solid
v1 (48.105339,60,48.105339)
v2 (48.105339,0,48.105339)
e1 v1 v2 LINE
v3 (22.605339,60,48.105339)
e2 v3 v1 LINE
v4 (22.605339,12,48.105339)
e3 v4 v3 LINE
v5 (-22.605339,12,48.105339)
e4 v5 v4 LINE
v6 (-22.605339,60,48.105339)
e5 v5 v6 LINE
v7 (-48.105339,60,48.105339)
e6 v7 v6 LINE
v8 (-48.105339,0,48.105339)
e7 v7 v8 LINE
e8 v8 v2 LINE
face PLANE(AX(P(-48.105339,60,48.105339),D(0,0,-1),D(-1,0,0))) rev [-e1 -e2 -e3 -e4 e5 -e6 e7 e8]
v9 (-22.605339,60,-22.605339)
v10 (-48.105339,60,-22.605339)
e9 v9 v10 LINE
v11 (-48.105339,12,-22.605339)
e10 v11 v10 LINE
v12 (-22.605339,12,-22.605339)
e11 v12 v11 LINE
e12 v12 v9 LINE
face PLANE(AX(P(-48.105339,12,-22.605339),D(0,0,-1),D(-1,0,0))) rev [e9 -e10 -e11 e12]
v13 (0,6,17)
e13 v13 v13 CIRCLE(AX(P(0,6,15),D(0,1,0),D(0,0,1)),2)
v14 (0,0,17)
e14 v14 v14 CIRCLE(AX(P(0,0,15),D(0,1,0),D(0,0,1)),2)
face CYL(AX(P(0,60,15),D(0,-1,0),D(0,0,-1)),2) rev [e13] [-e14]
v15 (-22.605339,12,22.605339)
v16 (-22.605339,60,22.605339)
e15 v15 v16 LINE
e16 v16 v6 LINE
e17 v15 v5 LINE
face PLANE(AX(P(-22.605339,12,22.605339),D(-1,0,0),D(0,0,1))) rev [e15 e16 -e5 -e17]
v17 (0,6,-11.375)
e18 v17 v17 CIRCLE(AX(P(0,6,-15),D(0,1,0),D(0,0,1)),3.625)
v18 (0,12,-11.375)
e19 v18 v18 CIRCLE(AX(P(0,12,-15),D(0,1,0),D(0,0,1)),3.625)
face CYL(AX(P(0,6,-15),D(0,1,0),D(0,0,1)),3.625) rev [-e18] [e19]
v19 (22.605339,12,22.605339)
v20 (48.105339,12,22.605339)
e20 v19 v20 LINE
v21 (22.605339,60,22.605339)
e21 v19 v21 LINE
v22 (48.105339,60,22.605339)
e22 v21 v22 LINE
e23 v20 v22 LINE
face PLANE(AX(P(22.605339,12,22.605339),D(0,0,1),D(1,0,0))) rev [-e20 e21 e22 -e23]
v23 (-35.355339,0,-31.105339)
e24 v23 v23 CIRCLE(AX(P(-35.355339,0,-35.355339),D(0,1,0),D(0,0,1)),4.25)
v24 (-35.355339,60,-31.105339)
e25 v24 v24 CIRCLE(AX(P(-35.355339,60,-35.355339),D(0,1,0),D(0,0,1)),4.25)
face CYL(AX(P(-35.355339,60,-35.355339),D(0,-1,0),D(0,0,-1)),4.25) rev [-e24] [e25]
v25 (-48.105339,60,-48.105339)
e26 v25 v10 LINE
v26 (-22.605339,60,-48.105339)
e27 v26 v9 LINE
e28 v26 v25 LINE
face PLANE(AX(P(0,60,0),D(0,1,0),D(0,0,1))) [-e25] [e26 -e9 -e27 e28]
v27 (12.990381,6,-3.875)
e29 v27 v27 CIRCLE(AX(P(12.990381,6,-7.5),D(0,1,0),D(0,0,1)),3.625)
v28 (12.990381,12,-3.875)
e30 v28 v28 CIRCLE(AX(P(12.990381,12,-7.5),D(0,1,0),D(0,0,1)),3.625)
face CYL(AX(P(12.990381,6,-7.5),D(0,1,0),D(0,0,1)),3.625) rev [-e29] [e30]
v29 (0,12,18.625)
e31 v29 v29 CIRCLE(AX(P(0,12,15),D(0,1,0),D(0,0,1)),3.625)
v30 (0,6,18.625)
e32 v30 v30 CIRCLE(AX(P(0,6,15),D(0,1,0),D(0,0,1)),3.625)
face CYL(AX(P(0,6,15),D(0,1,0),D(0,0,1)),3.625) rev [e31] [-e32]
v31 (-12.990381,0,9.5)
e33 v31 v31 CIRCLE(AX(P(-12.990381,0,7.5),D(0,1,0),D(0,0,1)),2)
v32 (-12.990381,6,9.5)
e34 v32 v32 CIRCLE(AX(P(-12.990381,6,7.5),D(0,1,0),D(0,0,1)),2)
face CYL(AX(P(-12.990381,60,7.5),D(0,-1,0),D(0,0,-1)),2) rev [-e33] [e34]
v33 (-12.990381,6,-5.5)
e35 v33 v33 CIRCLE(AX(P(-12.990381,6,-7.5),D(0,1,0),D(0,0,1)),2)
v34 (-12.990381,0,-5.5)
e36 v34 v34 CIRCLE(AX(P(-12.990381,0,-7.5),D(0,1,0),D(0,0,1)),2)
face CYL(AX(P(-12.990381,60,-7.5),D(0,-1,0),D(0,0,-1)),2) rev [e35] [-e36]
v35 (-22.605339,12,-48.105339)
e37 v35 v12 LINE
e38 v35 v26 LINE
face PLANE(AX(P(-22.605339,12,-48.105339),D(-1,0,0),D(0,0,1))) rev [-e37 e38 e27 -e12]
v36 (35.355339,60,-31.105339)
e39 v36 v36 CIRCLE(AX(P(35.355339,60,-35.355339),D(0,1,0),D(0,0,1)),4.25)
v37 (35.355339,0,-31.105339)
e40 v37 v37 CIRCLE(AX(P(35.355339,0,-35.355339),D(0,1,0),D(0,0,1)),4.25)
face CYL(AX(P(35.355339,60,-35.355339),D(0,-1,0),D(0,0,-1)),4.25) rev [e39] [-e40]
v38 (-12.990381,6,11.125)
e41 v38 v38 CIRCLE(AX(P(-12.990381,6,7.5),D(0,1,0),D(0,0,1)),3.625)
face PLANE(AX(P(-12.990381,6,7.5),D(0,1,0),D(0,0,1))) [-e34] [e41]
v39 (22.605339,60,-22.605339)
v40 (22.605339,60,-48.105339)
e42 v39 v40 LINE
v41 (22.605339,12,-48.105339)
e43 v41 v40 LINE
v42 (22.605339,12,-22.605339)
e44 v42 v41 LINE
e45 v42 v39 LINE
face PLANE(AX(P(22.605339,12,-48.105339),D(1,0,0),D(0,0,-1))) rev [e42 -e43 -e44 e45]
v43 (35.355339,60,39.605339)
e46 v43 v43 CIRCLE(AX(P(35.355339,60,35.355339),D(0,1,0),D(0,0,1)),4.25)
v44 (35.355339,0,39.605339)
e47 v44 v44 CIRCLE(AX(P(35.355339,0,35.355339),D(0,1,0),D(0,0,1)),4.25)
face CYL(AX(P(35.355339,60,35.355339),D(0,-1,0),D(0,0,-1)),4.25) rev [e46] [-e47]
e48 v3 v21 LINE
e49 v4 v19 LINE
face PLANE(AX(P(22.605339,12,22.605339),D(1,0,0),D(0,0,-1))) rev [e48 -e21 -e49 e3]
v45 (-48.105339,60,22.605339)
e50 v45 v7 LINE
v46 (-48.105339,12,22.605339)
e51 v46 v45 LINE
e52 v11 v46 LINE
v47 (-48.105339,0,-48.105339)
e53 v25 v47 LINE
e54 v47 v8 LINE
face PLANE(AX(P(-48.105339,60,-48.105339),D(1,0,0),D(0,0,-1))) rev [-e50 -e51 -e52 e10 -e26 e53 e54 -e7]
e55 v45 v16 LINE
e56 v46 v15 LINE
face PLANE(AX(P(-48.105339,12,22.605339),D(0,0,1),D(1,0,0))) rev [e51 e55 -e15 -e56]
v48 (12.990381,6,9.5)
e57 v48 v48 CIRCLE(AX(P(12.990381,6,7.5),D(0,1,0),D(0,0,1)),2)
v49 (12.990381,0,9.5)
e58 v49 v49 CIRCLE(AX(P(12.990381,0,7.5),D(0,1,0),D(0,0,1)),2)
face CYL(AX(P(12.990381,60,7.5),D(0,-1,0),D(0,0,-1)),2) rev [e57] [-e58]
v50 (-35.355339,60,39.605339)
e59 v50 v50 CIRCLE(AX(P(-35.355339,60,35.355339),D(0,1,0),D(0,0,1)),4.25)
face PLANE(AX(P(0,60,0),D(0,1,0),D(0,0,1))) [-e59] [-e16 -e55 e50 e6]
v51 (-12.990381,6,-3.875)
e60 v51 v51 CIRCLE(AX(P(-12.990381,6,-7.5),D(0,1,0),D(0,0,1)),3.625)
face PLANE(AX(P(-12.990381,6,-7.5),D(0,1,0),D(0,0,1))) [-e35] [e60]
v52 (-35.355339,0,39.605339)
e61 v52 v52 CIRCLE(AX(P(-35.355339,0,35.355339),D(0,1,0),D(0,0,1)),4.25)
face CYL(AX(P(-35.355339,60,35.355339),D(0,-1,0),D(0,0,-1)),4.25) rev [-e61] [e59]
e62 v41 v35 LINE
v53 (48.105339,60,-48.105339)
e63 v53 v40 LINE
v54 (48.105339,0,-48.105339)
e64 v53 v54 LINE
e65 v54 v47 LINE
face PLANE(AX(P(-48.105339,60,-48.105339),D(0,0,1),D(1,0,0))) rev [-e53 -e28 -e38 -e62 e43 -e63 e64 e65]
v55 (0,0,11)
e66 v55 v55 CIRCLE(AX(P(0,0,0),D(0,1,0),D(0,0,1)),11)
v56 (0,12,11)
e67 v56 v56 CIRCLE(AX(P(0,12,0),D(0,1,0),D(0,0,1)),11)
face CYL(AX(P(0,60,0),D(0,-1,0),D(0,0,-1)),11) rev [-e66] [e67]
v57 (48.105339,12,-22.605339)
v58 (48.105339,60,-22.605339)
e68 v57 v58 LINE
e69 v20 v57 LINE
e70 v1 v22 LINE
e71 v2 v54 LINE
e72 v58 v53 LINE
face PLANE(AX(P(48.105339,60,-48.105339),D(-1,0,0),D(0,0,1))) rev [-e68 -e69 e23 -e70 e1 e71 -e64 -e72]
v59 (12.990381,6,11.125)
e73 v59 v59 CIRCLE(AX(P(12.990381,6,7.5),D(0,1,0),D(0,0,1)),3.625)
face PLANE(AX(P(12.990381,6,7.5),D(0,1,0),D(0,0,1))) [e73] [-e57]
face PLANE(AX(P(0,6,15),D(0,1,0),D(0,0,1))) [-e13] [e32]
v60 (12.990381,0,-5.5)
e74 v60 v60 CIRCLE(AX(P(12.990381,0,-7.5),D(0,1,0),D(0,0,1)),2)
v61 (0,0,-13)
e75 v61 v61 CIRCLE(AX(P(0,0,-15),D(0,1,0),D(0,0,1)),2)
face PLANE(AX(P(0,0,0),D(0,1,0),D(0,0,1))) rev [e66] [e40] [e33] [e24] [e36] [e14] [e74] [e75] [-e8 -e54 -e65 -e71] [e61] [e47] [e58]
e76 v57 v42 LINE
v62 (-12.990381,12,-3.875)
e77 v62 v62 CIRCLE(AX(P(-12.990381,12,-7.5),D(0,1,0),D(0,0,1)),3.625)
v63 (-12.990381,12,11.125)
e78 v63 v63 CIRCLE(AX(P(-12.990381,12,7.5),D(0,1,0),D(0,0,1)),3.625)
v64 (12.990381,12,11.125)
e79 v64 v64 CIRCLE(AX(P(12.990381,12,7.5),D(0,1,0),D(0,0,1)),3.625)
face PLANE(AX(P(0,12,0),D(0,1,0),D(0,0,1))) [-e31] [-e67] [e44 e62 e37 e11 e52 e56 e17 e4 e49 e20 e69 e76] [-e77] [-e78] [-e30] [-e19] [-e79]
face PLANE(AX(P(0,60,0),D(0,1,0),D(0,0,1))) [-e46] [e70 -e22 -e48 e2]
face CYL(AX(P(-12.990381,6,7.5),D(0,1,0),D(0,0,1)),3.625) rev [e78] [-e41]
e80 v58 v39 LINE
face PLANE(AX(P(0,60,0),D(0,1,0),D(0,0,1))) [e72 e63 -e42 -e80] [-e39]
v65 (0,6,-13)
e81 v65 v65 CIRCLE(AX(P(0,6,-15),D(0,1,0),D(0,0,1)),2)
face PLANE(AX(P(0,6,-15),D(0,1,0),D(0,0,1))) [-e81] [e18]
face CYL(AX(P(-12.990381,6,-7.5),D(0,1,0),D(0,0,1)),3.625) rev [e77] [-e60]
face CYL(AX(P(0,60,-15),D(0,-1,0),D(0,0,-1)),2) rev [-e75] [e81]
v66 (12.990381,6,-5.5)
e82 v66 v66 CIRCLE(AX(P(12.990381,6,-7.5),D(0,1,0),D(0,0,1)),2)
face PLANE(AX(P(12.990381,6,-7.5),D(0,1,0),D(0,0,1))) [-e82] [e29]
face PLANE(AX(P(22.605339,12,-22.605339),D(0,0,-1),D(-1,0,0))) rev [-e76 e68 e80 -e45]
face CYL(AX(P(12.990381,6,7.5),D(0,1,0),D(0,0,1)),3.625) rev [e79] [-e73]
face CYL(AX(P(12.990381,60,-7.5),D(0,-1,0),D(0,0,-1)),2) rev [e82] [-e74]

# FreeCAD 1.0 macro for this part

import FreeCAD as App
import Part
import Sketcher


def add_polygon(sketch, points):
    """Adds a closed chain of lines whose ends are joined by coincident constraints."""
    first, n = sketch.GeometryCount, len(points)
    for a, b in zip(points, points[1:] + points[:1]):
        sketch.addGeometry(Part.LineSegment(App.Vector(*a, 0), App.Vector(*b, 0)), False)
    for i in range(n):
        sketch.addConstraint(Sketcher.Constraint("Coincident", first + i, 2, first + (i + 1) % n, 1))

doc = App.newDocument("Part")
body = doc.addObject("PartDesign::Body", "Body")

# Sketch on XZ plane
sketch1 = body.newObject("Sketcher::SketchObject", "Sketch")
sketch1.AttachmentSupport = (doc.getObject("XZ_Plane"), [""])
sketch1.MapMode = "FlatFace"
add_polygon(sketch1, [(-48.1, -48.1), (-48.1, 48.1), (48.1, 48.1), (48.1, -48.1)])  # lines 0-3
sketch1.addGeometry(Part.Circle(App.Vector(-35.4, 35.4, 0), App.Vector(0, 0, 1), 4.2), False)  # 4
sketch1.addGeometry(Part.Circle(App.Vector(-13, 7.5, 0), App.Vector(0, 0, 1), 2), False)  # 5
sketch1.addGeometry(Part.Circle(App.Vector(35.4, 35.4, 0), App.Vector(0, 0, 1), 4.2), False)  # 6
sketch1.addGeometry(Part.Circle(App.Vector(0, 15, 0), App.Vector(0, 0, 1), 2), False)  # 7
sketch1.addGeometry(Part.Circle(App.Vector(13, 7.5, 0), App.Vector(0, 0, 1), 2), False)  # 8
sketch1.addGeometry(Part.Circle(App.Vector(-13, -7.5, 0), App.Vector(0, 0, 1), 2), False)  # 9
sketch1.addGeometry(Part.Circle(App.Vector(-35.4, -35.4, 0), App.Vector(0, 0, 1), 4.2), False)  # 10
sketch1.addGeometry(Part.Circle(App.Vector(0, 0, 0), App.Vector(0, 0, 1), 11), False)  # 11
sketch1.addGeometry(Part.Circle(App.Vector(13, -7.5, 0), App.Vector(0, 0, 1), 2), False)  # 12
sketch1.addGeometry(Part.Circle(App.Vector(0, -15, 0), App.Vector(0, 0, 1), 2), False)  # 13
sketch1.addGeometry(Part.Circle(App.Vector(35.4, -35.4, 0), App.Vector(0, 0, 1), 4.2), False)  # 14
sketch1.addConstraint(Sketcher.Constraint("Vertical", 0))
sketch1.addConstraint(Sketcher.Constraint("Horizontal", 1))
sketch1.addConstraint(Sketcher.Constraint("Vertical", 2))
sketch1.addConstraint(Sketcher.Constraint("Horizontal", 3))
sketch1.addConstraint(Sketcher.Constraint("Coincident", 11, 3, -1, 1))
sketch1.addConstraint(Sketcher.Constraint("Equal", 4, 6))
sketch1.addConstraint(Sketcher.Constraint("Equal", 5, 7))
sketch1.addConstraint(Sketcher.Constraint("Equal", 7, 8))
sketch1.addConstraint(Sketcher.Constraint("Equal", 8, 9))
sketch1.addConstraint(Sketcher.Constraint("Equal", 6, 10))
sketch1.addConstraint(Sketcher.Constraint("Equal", 9, 12))
sketch1.addConstraint(Sketcher.Constraint("Equal", 12, 13))
sketch1.addConstraint(Sketcher.Constraint("Equal", 10, 14))
sketch1.addConstraint(Sketcher.Constraint("Symmetric", 8, 3, 9, 3, -1, 1))
sketch1.addConstraint(Sketcher.Constraint("Symmetric", 6, 3, 10, 3, -1, 1))
sketch1.addConstraint(Sketcher.Constraint("Symmetric", 5, 3, 12, 3, -1, 1))
sketch1.addConstraint(Sketcher.Constraint("Symmetric", 7, 3, 13, 3, -1, 1))
sketch1.addConstraint(Sketcher.Constraint("Symmetric", 4, 3, 14, 3, -1, 1))
sketch1.addConstraint(Sketcher.Constraint("Symmetric", 0, 2, 2, 2, -1, 1))
sketch1.addConstraint(Sketcher.Constraint("Symmetric", 4, 3, 6, 3, -2))
sketch1.addConstraint(Sketcher.Constraint("Symmetric", 5, 3, 8, 3, -2))
sketch1.addConstraint(Sketcher.Constraint("PointOnObject", 7, 3, -2))
sketch1.addConstraint(Sketcher.Constraint("Equal", 3, 0))
sketch1.addConstraint(Sketcher.Constraint("Diameter", 5, 4.0))
sketch1.addConstraint(Sketcher.Constraint("Diameter", 11, 22.0))
sketch1.addConstraint(Sketcher.Constraint("Diameter", 4, 8.5))
sketch1.addConstraint(Sketcher.Constraint("DistanceY", -1, 1, 7, 3, 15.0))
sketch1.addConstraint(Sketcher.Constraint("DistanceY", 9, 3, 5, 3, 15.0))
sketch1.addConstraint(Sketcher.Constraint("DistanceX", 0, 2, 4, 3, 12.75))
sketch1.addConstraint(Sketcher.Constraint("DistanceY", 4, 3, 0, 2, 12.75))
sketch1.addConstraint(Sketcher.Constraint("DistanceX", 1, 1, 1, 2, 96.210678))
sketch1.addConstraint(Sketcher.Constraint("DistanceX", 5, 3, -1, 1, 12.990381))
pad1 = body.newObject("PartDesign::Pad", "Pad")
pad1.Profile = sketch1
pad1.Length = 60
pad1.Reversed = True

# Sketch on XZ plane
sketch2 = body.newObject("Sketcher::SketchObject", "Sketch001")
sketch2.AttachmentSupport = (doc.getObject("XZ_Plane"), [""])
sketch2.MapMode = "FlatFace"
sketch2.AttachmentOffset = App.Placement(App.Vector(0, 0, -60), App.Rotation())
add_polygon(sketch2, [(23, -48), (-23, -48), (-23, -23), (-48, -23), (-48, 23), (-23, 23), (-23, 48), (23, 48), (23, 23), (48, 23), (48, -23), (23, -23)])  # lines 0-11
sketch2.addConstraint(Sketcher.Constraint("Horizontal", 0))
sketch2.addConstraint(Sketcher.Constraint("Vertical", 1))
sketch2.addConstraint(Sketcher.Constraint("Horizontal", 2))
sketch2.addConstraint(Sketcher.Constraint("Vertical", 3))
sketch2.addConstraint(Sketcher.Constraint("Horizontal", 4))
sketch2.addConstraint(Sketcher.Constraint("Vertical", 5))
sketch2.addConstraint(Sketcher.Constraint("Horizontal", 6))
sketch2.addConstraint(Sketcher.Constraint("Vertical", 7))
sketch2.addConstraint(Sketcher.Constraint("Horizontal", 8))
sketch2.addConstraint(Sketcher.Constraint("Vertical", 9))
sketch2.addConstraint(Sketcher.Constraint("Horizontal", 10))
sketch2.addConstraint(Sketcher.Constraint("Vertical", 11))
sketch2.addConstraint(Sketcher.Constraint("Symmetric", 0, 2, 6, 2, -1, 1))
sketch2.addConstraint(Sketcher.Constraint("Symmetric", 2, 2, 8, 2, -1, 1))
sketch2.addConstraint(Sketcher.Constraint("Symmetric", 4, 2, 10, 2, -1, 1))
sketch2.addConstraint(Sketcher.Constraint("Symmetric", 4, 2, 7, 2, -2))
sketch2.addConstraint(Sketcher.Constraint("Equal", 10, 1))
sketch2.addConstraint(Sketcher.Constraint("Equal", 6, 3))
sketch2.addConstraint(Sketcher.Constraint("DistanceX", 2, 2, 2, 1, 25.5))
sketch2.addConstraint(Sketcher.Constraint("DistanceX", 0, 2, 0, 1, 45.210678))
pocket1 = body.newObject("PartDesign::Pocket", "Pocket")
pocket1.Profile = sketch2
pocket1.Length = 48
pocket1.Reversed = True

# Sketch on XZ plane
sketch3 = body.newObject("Sketcher::SketchObject", "Sketch002")
sketch3.AttachmentSupport = (doc.getObject("XZ_Plane"), [""])
sketch3.MapMode = "FlatFace"
sketch3.AttachmentOffset = App.Placement(App.Vector(0, 0, -60), App.Rotation())
sketch3.addGeometry(Part.Circle(App.Vector(13, -7.5, 0), App.Vector(0, 0, 1), 3.6), False)
sketch3.addGeometry(Part.Circle(App.Vector(0, -15, 0), App.Vector(0, 0, 1), 3.6), False)
sketch3.addGeometry(Part.Circle(App.Vector(13, 7.5, 0), App.Vector(0, 0, 1), 3.6), False)
sketch3.addGeometry(Part.Circle(App.Vector(0, 15, 0), App.Vector(0, 0, 1), 3.6), False)
sketch3.addGeometry(Part.Circle(App.Vector(-13, 7.5, 0), App.Vector(0, 0, 1), 3.6), False)
sketch3.addGeometry(Part.Circle(App.Vector(-13, -7.5, 0), App.Vector(0, 0, 1), 3.6), False)
sketch3.addConstraint(Sketcher.Constraint("Equal", 0, 1))
sketch3.addConstraint(Sketcher.Constraint("Equal", 1, 2))
sketch3.addConstraint(Sketcher.Constraint("Equal", 2, 3))
sketch3.addConstraint(Sketcher.Constraint("Equal", 3, 4))
sketch3.addConstraint(Sketcher.Constraint("Equal", 4, 5))
sketch3.addConstraint(Sketcher.Constraint("Symmetric", 1, 3, 3, 3, -1, 1))
sketch3.addConstraint(Sketcher.Constraint("Symmetric", 0, 3, 4, 3, -1, 1))
sketch3.addConstraint(Sketcher.Constraint("Symmetric", 2, 3, 5, 3, -1, 1))
sketch3.addConstraint(Sketcher.Constraint("Symmetric", 2, 3, 4, 3, -2))
sketch3.addConstraint(Sketcher.Constraint("PointOnObject", 1, 3, -2))
sketch3.addConstraint(Sketcher.Constraint("Diameter", 0, 7.25))
sketch3.addConstraint(Sketcher.Constraint("DistanceY", 1, 3, -1, 1, 15.0))
sketch3.addConstraint(Sketcher.Constraint("DistanceY", 0, 3, 2, 3, 15.0))
sketch3.addConstraint(Sketcher.Constraint("DistanceX", -1, 1, 0, 3, 12.990381))
pocket2 = body.newObject("PartDesign::Pocket", "Pocket001")
pocket2.Profile = sketch3
pocket2.Length = 54
pocket2.Reversed = True

doc.recompute()
